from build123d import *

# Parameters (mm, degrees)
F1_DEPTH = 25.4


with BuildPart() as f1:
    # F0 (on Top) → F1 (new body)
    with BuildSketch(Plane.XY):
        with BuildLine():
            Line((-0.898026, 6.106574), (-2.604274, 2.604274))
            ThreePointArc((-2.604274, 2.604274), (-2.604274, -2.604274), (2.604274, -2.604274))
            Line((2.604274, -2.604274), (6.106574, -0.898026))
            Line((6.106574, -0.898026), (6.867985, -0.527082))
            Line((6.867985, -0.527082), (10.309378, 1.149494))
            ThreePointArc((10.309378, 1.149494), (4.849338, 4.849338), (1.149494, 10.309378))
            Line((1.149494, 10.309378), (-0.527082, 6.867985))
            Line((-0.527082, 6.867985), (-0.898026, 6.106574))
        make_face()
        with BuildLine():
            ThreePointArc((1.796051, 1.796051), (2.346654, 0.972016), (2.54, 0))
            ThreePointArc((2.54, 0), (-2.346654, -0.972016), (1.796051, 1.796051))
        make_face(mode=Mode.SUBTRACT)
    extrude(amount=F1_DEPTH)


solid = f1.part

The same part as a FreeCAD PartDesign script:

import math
import FreeCAD as App
import Part
import Sketcher
from FreeCAD import Vector
Q = App.Units.Quantity

doc = App.newDocument("Part")
params = doc.addObject("Spreadsheet::Sheet", "Params")
for row, (alias, value) in enumerate([
    ("sketch1_radius", "0.1 in"),
    ("sketch1_radius2", "0.145 in"),
    ("sketch1_radius3", "0.6879998 in"),
    ("pad1_length", "1 in"),
], start=1):
    params.set(f"A{row}", alias)
    params.set(f"B{row}", "=" + value)
    params.setAlias(f"B{row}", alias)

body = doc.addObject("PartDesign::Body", "Body")

sketch1 = doc.addObject("Sketcher::SketchObject", "Sketch")
body.addObject(sketch1)
sketch1.AttachmentSupport = (doc.XY_Plane, [""])
sketch1.MapMode = "FlatFace"
sketch1.addGeometry([
    Part.LineSegment(Vector(-0.9, 6.1, 0), Vector(-2.6, 2.6, 0)),
    Part.ArcOfCircle(Part.Circle(Vector(0, 0, 0), Vector(0, 0, 1), 3.7), math.radians(135), math.radians(315)),
    Part.LineSegment(Vector(2.6, -2.6, 0), Vector(6.1, -0.9, 0)),
    Part.LineSegment(Vector(6.1, -0.9, 0), Vector(6.9, -0.5, 0)),
    Part.LineSegment(Vector(6.9, -0.5, 0), Vector(10.3, 1.1, 0)),
    Part.ArcOfCircle(Part.Circle(Vector(17.2, 17.2, 0), Vector(0, 0, 1), 17.5), math.radians(-157), math.radians(-113)),
    Part.LineSegment(Vector(1.1, 10.3, 0), Vector(-0.5, 6.9, 0)),
    Part.LineSegment(Vector(-0.5, 6.9, 0), Vector(-0.9, 6.1, 0)),
    Part.ArcOfCircle(Part.Circle(Vector(0, 0, 0), Vector(0, 0, 1), 2.5), math.radians(45), math.radians(360)),
    Part.ArcOfCircle(Part.Circle(Vector(0, 0, 0), Vector(0, 0, 1), 2.5), math.radians(0), math.radians(45)),
], False)
sketch1.addConstraint([
    Sketcher.Constraint("Coincident", 0, 2, 1, 1),
    Sketcher.Constraint("Coincident", 1, 2, 2, 1),
    Sketcher.Constraint("Coincident", 2, 2, 3, 1),
    Sketcher.Constraint("Coincident", 3, 2, 4, 1),
    Sketcher.Constraint("Coincident", 4, 2, 5, 2),
    Sketcher.Constraint("Coincident", 5, 1, 6, 1),
    Sketcher.Constraint("Coincident", 6, 2, 7, 1),
    Sketcher.Constraint("Coincident", 7, 2, 0, 1),
    Sketcher.Constraint("Tangent", 8, 1, 9, 2),
    Sketcher.Constraint("Coincident", 9, 1, 8, 2),
    Sketcher.Constraint("Coincident", 1, 3, -1, 1),
    Sketcher.Constraint("Coincident", 8, 3, -1, 1),
    Sketcher.Constraint("PointOnObject", 9, 1, -1),
    Sketcher.Constraint("Parallel", 2, 3),
    Sketcher.Constraint("Parallel", 3, 4),
    Sketcher.Constraint("Parallel", 0, 6),
    Sketcher.Constraint("Parallel", 6, 7),
    Sketcher.Constraint("Equal", 0, 2),
    Sketcher.Constraint("Equal", 4, 6),
    Sketcher.Constraint("Equal", 3, 7),
    Sketcher.Constraint("Radius", 8, Q("0.1 in")),
    Sketcher.Constraint("Radius", 1, Q("0.145 in")),
    Sketcher.Constraint("Radius", 5, Q("0.6879998 in")),
    Sketcher.Constraint("DistanceX", 1, 2, 2, 2, 3.5023),
    Sketcher.Constraint("DistanceY", 2, 2, 0, 2, 3.5023),
    Sketcher.Constraint("DistanceY", 0, 2, 7, 2, 3.5023),
    Sketcher.Constraint("DistanceX", -1, 1, 8, 1, 1.796051),
    Sketcher.Constraint("DistanceX", 0, 2, 5, 3, 19.810441),
    Sketcher.Constraint("DistanceX", 9, 3, 1, 2, 2.604272),
    Sketcher.Constraint("DistanceX", 0, 2, 1, 2, 5.208548),
    Sketcher.Constraint("DistanceX", 2, 2, 3, 2, 0.761411),
])
sketch1.setExpression("Constraints[20]", "Params.sketch1_radius")
sketch1.setExpression("Constraints[21]", "Params.sketch1_radius2")
sketch1.setExpression("Constraints[22]", "Params.sketch1_radius3")
pad1 = doc.addObject("PartDesign::Pad", "Pad")
body.addObject(pad1)
pad1.Profile = sketch1
pad1.setExpression("Length", "Params.pad1_length")

doc.recompute()
